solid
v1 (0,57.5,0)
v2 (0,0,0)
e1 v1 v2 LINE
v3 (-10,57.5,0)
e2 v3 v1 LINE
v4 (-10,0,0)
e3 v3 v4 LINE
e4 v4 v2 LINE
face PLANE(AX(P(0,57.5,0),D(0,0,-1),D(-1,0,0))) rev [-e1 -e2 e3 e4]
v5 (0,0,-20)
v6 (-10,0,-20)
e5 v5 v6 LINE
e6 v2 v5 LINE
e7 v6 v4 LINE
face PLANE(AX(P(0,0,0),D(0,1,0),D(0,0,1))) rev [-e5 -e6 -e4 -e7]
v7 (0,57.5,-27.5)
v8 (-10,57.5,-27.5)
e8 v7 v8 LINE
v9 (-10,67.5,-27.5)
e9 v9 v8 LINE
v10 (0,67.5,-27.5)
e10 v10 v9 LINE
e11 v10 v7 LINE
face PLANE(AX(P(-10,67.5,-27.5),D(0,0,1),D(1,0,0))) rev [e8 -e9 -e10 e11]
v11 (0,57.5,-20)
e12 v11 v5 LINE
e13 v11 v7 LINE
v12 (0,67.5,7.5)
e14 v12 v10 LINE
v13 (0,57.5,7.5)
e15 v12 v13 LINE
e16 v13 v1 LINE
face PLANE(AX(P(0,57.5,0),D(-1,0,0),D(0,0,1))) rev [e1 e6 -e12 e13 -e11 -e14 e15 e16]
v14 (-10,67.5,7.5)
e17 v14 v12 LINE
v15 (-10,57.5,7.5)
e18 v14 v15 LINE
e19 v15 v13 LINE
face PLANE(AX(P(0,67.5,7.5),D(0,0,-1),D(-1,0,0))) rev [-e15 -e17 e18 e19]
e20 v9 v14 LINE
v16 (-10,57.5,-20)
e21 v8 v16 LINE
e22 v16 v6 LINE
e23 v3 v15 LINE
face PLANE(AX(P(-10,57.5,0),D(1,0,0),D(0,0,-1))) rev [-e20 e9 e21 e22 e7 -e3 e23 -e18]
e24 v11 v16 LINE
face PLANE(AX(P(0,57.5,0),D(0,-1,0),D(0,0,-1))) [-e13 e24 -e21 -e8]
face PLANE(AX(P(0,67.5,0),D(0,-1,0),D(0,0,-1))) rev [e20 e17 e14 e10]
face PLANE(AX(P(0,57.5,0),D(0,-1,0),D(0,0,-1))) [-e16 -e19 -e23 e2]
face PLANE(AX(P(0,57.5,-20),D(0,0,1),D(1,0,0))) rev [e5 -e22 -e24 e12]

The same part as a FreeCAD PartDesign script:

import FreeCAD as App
import Part
import Sketcher
from FreeCAD import Vector

doc = App.newDocument("Part")
body = doc.addObject("PartDesign::Body", "Body")

# Sketch on XZ plane
sketch1 = body.newObject("Sketcher::SketchObject", "Sketch")
sketch1.AttachmentSupport = (doc.getObject("XZ_Plane"), [""])
sketch1.MapMode = "FlatFace"
sketch1.addGeometry([
    Part.LineSegment(Vector(-10, -20, 0), Vector(-10, 0, 0)),
    Part.LineSegment(Vector(-10, 0, 0), Vector(0, 0, 0)),
    Part.LineSegment(Vector(0, 0, 0), Vector(0, -20, 0)),
    Part.LineSegment(Vector(0, -20, 0), Vector(-10, -20, 0)),
], False)
sketch1.addConstraint([
    Sketcher.Constraint("Coincident", 0, 2, 1, 1),
    Sketcher.Constraint("Coincident", 1, 2, 2, 1),
    Sketcher.Constraint("Coincident", 2, 2, 3, 1),
    Sketcher.Constraint("Coincident", 3, 2, 0, 1),
    Sketcher.Constraint("Vertical", 0),
    Sketcher.Constraint("Horizontal", 1),
    Sketcher.Constraint("Vertical", 2),
    Sketcher.Constraint("Horizontal", 3),
    Sketcher.Constraint("Coincident", 1, 2, -1, 1),
    Sketcher.Constraint("DistanceX", 1, 1, 1, 2, 10.0),
    Sketcher.Constraint("DistanceY", 0, 1, 0, 2, 20.0),
])
pad1 = body.newObject("PartDesign::Pad", "Pad")
pad1.Profile = sketch1
pad1.Length = 57.5
pad1.Reversed = True

# Sketch on XZ plane
sketch2 = body.newObject("Sketcher::SketchObject", "Sketch001")
sketch2.AttachmentSupport = (doc.getObject("XZ_Plane"), [""])
sketch2.MapMode = "FlatFace"
sketch2.AttachmentOffset = App.Placement(Vector(0, 0, -57.5), App.Rotation())
sketch2.addGeometry([
    Part.LineSegment(Vector(-10, -28, 0), Vector(-10, 8, 0)),
    Part.LineSegment(Vector(-10, 8, 0), Vector(0, 8, 0)),
    Part.LineSegment(Vector(0, 8, 0), Vector(0, -28, 0)),
    Part.LineSegment(Vector(0, -28, 0), Vector(-10, -28, 0)),
], False)
sketch2.addConstraint([
    Sketcher.Constraint("Coincident", 0, 2, 1, 1),
    Sketcher.Constraint("Coincident", 1, 2, 2, 1),
    Sketcher.Constraint("Coincident", 2, 2, 3, 1),
    Sketcher.Constraint("Coincident", 3, 2, 0, 1),
    Sketcher.Constraint("Vertical", 0),
    Sketcher.Constraint("Horizontal", 1),
    Sketcher.Constraint("Vertical", 2),
    Sketcher.Constraint("Horizontal", 3),
    Sketcher.Constraint("PointOnObject", 1, 2, -2),
    Sketcher.Constraint("DistanceX", 1, 1, 1, 2, 10.0),
    Sketcher.Constraint("DistanceY", 0, 1, 0, 2, 35.0),
    Sketcher.Constraint("DistanceY", -1, 1, 0, 2, 7.5),
])
pad2 = body.newObject("PartDesign::Pad", "Pad001")
pad2.Profile = sketch2
pad2.Length = 10
pad2.Reversed = True

doc.recompute()
